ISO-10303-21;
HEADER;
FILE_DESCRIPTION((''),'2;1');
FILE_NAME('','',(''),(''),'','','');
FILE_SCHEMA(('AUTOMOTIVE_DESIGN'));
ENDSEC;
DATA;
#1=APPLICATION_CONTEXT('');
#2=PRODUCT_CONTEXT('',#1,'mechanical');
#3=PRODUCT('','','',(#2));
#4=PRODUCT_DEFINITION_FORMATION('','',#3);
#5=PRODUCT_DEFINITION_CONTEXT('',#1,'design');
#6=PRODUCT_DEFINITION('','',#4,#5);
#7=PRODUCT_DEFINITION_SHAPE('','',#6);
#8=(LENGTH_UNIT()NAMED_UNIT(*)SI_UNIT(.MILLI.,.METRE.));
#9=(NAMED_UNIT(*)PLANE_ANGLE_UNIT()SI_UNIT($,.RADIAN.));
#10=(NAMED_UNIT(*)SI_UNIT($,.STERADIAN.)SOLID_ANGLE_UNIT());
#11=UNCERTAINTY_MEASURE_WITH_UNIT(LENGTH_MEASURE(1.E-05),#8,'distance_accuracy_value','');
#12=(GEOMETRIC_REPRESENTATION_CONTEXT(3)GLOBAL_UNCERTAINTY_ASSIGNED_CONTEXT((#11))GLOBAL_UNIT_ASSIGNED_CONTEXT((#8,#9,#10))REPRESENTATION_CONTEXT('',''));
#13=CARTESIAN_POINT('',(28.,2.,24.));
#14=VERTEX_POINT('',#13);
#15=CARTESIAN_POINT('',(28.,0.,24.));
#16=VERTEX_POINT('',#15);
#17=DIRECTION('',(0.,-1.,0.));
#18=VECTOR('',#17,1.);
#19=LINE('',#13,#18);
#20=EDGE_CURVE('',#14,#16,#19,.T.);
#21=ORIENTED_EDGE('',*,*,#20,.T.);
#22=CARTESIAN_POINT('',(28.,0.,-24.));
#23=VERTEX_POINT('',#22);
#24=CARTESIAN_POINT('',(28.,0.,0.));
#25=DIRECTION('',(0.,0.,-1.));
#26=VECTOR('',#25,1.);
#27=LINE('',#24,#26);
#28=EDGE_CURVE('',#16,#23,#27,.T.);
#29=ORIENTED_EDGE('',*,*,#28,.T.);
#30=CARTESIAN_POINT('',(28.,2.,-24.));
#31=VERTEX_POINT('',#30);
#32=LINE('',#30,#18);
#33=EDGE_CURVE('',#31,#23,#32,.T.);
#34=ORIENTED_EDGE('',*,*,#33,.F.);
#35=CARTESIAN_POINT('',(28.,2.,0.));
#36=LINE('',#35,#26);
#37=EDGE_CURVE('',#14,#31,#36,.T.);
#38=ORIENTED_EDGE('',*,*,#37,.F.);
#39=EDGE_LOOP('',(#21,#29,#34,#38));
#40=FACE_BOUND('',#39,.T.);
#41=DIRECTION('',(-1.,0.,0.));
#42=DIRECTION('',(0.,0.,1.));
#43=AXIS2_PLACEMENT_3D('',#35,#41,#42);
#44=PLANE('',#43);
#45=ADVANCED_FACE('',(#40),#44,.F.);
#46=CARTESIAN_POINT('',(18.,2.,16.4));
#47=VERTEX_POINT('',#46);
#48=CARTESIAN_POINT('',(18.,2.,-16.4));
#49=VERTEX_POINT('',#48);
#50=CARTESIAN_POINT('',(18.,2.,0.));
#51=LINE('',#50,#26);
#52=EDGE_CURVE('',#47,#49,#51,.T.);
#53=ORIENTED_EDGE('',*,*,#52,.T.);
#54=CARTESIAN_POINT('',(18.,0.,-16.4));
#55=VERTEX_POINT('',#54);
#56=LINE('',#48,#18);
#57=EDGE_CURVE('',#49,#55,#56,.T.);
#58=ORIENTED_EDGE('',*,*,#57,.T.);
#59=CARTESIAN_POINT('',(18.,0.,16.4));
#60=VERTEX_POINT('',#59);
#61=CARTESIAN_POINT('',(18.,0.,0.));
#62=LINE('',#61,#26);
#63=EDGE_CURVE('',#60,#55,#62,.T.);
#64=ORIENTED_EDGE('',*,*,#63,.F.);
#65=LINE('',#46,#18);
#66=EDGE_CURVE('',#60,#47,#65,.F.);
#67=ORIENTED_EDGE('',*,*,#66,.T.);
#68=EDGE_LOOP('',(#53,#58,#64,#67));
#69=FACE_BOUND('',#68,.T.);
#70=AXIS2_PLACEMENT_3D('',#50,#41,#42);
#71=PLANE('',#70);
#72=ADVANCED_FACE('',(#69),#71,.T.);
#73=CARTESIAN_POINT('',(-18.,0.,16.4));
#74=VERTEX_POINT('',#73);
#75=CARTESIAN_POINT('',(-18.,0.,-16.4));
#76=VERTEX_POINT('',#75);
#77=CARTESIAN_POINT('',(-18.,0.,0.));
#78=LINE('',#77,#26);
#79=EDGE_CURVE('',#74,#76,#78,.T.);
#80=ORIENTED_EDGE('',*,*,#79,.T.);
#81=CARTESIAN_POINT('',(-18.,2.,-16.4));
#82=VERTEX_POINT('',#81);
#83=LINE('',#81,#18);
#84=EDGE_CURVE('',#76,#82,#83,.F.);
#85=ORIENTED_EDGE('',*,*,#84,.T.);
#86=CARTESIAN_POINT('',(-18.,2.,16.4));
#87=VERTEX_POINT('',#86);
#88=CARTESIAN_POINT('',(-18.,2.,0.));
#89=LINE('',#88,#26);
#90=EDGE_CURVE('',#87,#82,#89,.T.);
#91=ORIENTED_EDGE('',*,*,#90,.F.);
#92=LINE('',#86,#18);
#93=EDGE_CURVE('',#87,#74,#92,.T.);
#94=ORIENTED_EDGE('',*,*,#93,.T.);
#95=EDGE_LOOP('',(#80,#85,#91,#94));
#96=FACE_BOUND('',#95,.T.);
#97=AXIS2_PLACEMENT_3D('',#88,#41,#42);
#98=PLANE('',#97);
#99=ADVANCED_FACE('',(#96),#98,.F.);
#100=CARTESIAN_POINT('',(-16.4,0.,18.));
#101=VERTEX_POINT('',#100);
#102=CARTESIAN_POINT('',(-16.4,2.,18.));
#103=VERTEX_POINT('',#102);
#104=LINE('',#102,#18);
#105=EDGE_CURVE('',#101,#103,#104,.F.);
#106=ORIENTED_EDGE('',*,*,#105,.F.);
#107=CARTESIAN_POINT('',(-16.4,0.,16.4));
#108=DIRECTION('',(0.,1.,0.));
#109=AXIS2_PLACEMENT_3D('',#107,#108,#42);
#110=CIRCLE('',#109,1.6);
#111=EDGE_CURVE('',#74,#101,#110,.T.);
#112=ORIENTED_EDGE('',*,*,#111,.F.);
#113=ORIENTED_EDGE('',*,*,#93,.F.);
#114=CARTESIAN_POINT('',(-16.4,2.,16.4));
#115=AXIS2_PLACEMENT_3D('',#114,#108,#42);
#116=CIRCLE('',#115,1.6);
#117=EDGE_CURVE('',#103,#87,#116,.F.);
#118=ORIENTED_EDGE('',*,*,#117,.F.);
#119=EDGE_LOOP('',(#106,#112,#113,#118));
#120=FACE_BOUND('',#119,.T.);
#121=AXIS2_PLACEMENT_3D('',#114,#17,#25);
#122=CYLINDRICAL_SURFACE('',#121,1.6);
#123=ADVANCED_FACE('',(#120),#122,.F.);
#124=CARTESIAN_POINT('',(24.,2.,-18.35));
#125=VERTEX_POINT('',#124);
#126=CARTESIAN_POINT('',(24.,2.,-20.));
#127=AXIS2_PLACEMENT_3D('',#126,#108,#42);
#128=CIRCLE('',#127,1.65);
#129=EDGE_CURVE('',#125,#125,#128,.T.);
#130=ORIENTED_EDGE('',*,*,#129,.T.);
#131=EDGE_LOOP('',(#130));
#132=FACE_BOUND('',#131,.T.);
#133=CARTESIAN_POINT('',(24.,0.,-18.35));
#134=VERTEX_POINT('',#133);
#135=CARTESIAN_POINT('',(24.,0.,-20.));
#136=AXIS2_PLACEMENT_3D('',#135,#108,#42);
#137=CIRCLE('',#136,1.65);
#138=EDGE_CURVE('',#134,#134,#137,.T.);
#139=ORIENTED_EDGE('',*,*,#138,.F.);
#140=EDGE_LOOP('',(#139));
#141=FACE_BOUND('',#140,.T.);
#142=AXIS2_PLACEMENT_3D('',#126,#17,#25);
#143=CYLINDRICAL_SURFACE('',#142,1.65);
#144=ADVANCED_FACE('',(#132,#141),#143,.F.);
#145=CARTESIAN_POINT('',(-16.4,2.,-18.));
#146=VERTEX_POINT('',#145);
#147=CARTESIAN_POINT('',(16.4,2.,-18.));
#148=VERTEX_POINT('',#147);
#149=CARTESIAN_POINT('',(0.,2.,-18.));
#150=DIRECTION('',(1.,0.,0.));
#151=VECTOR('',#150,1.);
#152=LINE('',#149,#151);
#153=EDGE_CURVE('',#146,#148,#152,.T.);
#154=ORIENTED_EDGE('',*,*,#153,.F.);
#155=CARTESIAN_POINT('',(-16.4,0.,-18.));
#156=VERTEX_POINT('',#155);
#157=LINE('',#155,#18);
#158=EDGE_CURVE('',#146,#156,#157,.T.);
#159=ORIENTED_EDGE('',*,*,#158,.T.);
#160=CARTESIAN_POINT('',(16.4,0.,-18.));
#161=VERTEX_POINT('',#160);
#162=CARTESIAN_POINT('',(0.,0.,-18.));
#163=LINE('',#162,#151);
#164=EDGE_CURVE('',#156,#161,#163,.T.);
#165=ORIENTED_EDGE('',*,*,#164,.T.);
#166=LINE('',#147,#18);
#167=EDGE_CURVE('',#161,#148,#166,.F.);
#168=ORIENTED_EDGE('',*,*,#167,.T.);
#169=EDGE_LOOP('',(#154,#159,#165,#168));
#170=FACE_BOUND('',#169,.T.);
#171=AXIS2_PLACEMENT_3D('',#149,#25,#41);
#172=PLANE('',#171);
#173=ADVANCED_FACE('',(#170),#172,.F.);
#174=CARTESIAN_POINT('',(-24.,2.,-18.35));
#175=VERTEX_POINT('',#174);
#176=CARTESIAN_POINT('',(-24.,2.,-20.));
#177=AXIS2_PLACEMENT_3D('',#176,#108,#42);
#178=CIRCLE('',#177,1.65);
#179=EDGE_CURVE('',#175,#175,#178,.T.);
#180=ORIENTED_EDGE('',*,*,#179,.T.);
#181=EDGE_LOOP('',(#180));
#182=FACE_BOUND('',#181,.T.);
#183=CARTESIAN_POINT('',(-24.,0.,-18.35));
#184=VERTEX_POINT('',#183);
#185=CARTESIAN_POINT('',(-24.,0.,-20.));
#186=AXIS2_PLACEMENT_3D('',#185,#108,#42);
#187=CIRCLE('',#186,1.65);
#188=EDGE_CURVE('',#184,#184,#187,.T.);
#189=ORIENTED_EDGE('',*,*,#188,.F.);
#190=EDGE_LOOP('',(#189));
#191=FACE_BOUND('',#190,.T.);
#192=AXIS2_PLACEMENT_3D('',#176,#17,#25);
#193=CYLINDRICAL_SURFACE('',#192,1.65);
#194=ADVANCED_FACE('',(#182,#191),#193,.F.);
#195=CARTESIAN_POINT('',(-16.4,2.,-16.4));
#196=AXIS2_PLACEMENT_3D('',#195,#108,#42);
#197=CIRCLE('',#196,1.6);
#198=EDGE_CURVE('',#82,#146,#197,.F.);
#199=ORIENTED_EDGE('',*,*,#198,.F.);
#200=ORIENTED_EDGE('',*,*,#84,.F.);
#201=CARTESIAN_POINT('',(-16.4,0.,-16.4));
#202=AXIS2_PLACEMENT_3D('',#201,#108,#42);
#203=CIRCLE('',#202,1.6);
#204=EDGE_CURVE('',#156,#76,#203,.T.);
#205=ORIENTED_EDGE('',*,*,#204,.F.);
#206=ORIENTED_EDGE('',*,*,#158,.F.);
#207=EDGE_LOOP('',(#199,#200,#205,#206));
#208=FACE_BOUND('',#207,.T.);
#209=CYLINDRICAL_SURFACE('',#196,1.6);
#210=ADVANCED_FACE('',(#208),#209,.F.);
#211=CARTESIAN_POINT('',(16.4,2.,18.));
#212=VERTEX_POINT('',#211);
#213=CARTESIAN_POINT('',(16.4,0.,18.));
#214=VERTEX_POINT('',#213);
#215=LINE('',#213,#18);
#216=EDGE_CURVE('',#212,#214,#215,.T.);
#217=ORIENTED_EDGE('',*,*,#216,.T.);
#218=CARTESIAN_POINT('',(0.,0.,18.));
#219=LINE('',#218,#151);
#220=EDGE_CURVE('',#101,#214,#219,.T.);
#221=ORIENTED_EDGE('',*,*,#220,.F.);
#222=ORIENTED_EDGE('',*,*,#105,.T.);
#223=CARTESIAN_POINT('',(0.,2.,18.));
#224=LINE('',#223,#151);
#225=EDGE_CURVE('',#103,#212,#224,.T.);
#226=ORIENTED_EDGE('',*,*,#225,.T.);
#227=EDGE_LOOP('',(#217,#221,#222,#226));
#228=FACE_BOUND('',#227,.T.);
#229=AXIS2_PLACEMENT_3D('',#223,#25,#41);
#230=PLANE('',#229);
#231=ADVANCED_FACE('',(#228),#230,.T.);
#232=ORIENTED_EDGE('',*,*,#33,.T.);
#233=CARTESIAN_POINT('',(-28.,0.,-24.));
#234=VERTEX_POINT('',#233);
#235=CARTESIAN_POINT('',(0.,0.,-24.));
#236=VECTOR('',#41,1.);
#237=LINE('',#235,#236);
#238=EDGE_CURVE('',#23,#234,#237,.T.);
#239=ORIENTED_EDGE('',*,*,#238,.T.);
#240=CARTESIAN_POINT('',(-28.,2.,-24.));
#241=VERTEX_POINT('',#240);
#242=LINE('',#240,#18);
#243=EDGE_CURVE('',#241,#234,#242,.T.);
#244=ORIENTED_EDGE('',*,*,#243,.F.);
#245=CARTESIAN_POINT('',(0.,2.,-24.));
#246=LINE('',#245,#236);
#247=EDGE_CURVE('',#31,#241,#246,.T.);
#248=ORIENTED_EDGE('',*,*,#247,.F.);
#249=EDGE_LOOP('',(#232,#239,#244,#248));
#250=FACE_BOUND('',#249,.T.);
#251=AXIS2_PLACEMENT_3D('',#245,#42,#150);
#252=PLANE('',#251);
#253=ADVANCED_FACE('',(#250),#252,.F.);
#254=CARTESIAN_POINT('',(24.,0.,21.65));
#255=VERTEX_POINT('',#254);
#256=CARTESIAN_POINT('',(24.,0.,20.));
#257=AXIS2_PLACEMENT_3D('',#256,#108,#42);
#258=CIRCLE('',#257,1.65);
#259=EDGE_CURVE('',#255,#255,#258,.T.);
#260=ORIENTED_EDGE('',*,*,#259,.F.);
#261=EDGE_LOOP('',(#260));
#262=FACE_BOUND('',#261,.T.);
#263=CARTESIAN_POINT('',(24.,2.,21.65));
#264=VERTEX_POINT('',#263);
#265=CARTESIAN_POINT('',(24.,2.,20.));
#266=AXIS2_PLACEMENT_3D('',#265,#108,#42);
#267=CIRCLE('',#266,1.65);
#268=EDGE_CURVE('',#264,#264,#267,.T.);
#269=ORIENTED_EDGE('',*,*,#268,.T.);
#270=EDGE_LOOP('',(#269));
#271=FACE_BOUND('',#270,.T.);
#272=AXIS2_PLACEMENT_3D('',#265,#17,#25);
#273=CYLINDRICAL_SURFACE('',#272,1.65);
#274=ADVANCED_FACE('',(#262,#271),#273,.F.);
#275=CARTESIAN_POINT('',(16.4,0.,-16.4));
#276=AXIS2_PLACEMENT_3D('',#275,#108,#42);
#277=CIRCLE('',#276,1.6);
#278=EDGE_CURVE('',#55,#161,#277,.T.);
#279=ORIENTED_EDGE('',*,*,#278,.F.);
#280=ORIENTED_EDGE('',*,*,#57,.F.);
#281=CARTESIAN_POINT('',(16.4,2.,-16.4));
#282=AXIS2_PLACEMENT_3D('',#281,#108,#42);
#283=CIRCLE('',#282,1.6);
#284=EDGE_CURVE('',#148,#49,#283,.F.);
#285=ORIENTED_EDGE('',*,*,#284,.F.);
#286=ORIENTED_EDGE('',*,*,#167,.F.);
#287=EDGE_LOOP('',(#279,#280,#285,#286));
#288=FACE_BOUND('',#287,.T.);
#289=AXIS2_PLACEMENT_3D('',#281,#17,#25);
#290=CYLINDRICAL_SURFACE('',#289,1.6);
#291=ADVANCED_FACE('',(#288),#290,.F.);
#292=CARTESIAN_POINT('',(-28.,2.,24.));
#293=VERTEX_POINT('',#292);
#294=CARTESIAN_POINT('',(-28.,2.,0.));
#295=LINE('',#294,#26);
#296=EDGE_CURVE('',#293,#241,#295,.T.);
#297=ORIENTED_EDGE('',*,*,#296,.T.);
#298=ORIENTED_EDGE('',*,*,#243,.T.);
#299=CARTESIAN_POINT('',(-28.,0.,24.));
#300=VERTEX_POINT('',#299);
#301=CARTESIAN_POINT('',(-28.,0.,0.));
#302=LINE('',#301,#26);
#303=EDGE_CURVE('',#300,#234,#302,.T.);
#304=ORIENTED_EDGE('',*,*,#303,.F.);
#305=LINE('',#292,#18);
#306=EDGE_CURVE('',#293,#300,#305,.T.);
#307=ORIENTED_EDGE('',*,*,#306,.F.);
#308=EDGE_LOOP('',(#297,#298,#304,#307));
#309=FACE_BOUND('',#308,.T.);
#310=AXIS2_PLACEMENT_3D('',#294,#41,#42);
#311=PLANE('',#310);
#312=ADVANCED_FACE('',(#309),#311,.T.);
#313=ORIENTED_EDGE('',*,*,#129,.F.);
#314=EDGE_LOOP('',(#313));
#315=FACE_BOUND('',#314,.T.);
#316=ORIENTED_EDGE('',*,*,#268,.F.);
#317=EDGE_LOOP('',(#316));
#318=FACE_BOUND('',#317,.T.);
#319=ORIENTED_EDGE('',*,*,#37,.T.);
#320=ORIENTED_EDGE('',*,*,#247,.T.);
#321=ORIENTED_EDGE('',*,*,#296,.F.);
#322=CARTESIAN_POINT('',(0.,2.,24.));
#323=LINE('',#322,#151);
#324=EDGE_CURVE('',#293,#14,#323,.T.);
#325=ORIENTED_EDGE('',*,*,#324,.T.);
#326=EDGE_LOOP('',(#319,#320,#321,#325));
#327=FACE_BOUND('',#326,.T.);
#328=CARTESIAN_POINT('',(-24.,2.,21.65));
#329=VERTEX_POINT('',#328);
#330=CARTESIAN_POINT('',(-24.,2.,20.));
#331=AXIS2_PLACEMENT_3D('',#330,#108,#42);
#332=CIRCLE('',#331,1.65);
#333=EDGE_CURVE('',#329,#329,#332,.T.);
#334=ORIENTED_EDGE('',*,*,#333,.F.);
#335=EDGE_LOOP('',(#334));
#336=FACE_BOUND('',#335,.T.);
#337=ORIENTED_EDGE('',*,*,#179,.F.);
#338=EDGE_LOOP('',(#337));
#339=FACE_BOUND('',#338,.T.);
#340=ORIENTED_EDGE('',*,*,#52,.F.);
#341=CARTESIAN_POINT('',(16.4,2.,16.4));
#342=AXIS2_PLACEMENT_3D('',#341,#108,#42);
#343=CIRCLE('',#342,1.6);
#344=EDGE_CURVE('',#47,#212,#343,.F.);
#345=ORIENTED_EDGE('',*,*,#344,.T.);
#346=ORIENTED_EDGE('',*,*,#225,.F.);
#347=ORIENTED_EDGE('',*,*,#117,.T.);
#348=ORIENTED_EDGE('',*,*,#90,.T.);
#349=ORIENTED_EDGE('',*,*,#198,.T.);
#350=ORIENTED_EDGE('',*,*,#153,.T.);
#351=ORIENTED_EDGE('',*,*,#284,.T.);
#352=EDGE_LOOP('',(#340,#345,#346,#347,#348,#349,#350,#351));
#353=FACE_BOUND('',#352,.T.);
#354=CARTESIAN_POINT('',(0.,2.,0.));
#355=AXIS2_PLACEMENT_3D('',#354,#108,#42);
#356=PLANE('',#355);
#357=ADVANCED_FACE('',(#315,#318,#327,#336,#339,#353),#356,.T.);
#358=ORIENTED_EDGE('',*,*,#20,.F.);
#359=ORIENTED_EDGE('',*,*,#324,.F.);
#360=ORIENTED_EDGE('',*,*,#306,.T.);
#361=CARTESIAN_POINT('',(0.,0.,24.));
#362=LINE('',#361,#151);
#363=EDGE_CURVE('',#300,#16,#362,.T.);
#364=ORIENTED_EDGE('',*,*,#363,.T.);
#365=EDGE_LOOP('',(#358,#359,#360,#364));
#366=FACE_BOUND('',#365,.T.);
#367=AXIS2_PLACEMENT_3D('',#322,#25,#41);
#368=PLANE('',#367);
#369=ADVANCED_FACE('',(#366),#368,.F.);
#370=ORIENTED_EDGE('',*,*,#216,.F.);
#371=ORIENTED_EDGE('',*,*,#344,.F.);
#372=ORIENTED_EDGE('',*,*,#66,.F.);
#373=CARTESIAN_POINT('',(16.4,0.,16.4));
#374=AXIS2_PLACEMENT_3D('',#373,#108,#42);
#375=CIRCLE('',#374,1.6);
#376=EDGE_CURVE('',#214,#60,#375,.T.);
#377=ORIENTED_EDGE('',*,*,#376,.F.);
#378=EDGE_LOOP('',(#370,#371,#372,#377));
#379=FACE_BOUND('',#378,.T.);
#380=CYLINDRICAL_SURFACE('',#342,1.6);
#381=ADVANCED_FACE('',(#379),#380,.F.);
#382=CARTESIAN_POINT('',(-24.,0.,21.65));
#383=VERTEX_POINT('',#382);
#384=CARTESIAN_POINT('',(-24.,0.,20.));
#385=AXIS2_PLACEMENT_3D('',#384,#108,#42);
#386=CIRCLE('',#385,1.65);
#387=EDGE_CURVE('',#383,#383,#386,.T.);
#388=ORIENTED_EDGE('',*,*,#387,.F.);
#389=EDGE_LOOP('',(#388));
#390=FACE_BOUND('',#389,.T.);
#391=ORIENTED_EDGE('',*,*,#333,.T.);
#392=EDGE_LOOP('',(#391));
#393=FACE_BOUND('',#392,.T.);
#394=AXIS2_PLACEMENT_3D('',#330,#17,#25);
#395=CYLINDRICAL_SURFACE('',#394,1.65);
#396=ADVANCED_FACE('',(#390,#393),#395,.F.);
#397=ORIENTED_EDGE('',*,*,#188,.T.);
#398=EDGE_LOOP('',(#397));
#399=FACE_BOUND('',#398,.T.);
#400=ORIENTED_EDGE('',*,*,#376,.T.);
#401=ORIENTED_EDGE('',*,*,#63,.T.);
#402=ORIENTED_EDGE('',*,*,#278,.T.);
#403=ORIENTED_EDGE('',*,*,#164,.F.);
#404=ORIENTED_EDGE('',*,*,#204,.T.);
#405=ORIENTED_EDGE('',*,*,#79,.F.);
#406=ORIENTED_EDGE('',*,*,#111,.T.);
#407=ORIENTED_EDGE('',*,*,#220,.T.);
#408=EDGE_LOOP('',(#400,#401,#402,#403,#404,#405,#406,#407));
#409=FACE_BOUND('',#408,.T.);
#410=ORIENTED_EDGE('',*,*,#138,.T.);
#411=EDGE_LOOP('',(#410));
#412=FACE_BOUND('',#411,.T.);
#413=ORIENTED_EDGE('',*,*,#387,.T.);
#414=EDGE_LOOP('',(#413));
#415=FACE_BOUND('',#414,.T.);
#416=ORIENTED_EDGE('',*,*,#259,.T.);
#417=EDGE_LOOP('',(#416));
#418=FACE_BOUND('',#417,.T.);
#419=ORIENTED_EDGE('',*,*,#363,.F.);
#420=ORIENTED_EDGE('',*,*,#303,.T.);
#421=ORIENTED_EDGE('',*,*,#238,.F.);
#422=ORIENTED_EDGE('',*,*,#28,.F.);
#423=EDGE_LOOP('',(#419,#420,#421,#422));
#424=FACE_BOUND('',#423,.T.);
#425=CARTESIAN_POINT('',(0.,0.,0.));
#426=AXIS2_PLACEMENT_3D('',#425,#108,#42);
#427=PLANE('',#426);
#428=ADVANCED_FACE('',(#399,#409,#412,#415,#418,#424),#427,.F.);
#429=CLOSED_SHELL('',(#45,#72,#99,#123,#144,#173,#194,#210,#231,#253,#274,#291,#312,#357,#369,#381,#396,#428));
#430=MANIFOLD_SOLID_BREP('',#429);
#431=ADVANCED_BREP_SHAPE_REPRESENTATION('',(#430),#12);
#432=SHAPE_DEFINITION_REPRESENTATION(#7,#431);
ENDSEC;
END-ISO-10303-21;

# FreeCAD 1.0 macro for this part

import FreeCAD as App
import Part
import Sketcher

V = App.Vector


def edges_at(feature, points):
    """Names of the edges that pass closest to the given points."""
    edges = feature.Shape.Edges
    near = lambda p: min(range(len(edges)), key=lambda i: edges[i].distToShape(Part.Vertex(*p))[0])
    return sorted({f"Edge{near(p) + 1}" for p in points})

doc = App.newDocument("Part")
body = doc.addObject("PartDesign::Body", "Body")

sketch1 = body.newObject("Sketcher::SketchObject", "Sketch")
sketch1.AttachmentSupport = (doc.getObject("XZ_Plane"), [""])
sketch1.MapMode = "FlatFace"
sketch1.addGeometry([
    Part.LineSegment(V(-28, -24, 0), V(-28, 24, 0)),
    Part.LineSegment(V(-28, 24, 0), V(28, 24, 0)),
    Part.LineSegment(V(28, 24, 0), V(28, -24, 0)),
    Part.LineSegment(V(28, -24, 0), V(-28, -24, 0)),
    Part.Circle(V(-24, 20, 0), V(0, 0, 1), 1.6),
    Part.Circle(V(24, 20, 0), V(0, 0, 1), 1.6),
    Part.Circle(V(-24, -20, 0), V(0, 0, 1), 1.6),
    Part.LineSegment(V(18, 18, 0), V(-18, 18, 0)),
    Part.LineSegment(V(-18, 18, 0), V(-18, -18, 0)),
    Part.LineSegment(V(-18, -18, 0), V(18, -18, 0)),
    Part.LineSegment(V(18, -18, 0), V(18, 18, 0)),
    Part.Circle(V(24, -20, 0), V(0, 0, 1), 1.6),
], False)
sketch1.addConstraint([
    Sketcher.Constraint("Coincident", 0, 2, 1, 1),
    Sketcher.Constraint("Coincident", 1, 2, 2, 1),
    Sketcher.Constraint("Coincident", 2, 2, 3, 1),
    Sketcher.Constraint("Coincident", 3, 2, 0, 1),
    Sketcher.Constraint("Coincident", 7, 2, 8, 1),
    Sketcher.Constraint("Coincident", 8, 2, 9, 1),
    Sketcher.Constraint("Coincident", 9, 2, 10, 1),
    Sketcher.Constraint("Coincident", 10, 2, 7, 1),
    Sketcher.Constraint("Vertical", 0),
    Sketcher.Constraint("Horizontal", 1),
    Sketcher.Constraint("Vertical", 2),
    Sketcher.Constraint("Horizontal", 3),
    Sketcher.Constraint("Horizontal", 7),
    Sketcher.Constraint("Vertical", 8),
    Sketcher.Constraint("Horizontal", 9),
    Sketcher.Constraint("Vertical", 10),
    Sketcher.Constraint("Equal", 4, 5),
    Sketcher.Constraint("Equal", 5, 6),
    Sketcher.Constraint("Equal", 6, 11),
    Sketcher.Constraint("Symmetric", 5, 3, 6, 3, -1, 1),
    Sketcher.Constraint("Symmetric", 4, 3, 11, 3, -1, 1),
    Sketcher.Constraint("Symmetric", 0, 2, 2, 2, -1, 1),
    Sketcher.Constraint("Symmetric", 7, 2, 9, 2, -1, 1),
    Sketcher.Constraint("Symmetric", 4, 3, 5, 3, -2),
    Sketcher.Constraint("Equal", 9, 8),
    Sketcher.Constraint("Diameter", 4, 3.3),
    Sketcher.Constraint("DistanceX", 1, 1, 1, 2, 56.0),
    Sketcher.Constraint("DistanceX", 7, 2, 7, 1, 36.0),
    Sketcher.Constraint("DistanceY", 0, 1, 0, 2, 48.0),
    Sketcher.Constraint("DistanceX", 4, 3, -1, 1, 24.0),
    Sketcher.Constraint("DistanceY", -1, 1, 4, 3, 20.0),
])
pad1 = body.newObject("PartDesign::Pad", "Pad")
pad1.Profile = sketch1
pad1.Length = 2
pad1.Reversed = True
doc.recompute()

fillet = body.newObject("PartDesign::Fillet", "Fillet")
fillet.Base = (pad1, edges_at(pad1, [
    (18, 1, -18),
    (-18, 1, -18),
    (-18, 1, 18),
    (18, 1, 18),
]))
fillet.Radius = 1.6

doc.recompute()
